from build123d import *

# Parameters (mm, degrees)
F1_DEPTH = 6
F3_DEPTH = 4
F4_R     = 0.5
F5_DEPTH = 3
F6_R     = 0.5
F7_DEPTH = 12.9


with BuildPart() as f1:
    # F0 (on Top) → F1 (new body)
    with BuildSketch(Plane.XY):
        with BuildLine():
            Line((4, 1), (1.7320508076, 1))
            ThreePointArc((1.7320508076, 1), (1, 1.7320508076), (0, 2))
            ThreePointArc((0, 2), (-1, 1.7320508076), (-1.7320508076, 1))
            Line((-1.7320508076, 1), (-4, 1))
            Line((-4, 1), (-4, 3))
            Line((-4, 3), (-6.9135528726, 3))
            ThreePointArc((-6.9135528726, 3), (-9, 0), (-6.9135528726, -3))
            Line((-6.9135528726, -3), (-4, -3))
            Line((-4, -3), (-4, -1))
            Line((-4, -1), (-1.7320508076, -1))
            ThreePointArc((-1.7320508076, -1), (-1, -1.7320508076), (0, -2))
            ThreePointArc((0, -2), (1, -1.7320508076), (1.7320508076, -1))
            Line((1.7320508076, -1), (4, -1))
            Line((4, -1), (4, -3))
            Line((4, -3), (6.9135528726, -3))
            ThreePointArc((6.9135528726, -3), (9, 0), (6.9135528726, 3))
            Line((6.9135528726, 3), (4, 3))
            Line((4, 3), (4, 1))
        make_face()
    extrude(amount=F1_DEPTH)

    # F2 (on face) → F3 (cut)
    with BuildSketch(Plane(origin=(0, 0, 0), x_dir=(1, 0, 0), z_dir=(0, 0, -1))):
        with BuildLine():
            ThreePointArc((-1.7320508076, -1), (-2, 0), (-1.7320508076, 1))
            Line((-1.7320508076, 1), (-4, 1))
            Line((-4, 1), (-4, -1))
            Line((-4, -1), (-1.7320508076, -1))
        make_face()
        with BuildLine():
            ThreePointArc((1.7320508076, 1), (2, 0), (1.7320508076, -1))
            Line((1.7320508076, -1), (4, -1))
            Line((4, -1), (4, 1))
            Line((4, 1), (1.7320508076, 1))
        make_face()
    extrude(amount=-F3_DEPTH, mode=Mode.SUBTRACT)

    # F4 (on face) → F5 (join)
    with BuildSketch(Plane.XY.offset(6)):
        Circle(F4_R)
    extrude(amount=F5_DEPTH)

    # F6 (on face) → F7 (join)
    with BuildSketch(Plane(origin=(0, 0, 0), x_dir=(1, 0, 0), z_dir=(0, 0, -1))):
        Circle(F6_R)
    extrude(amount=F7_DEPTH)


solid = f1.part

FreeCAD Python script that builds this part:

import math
import FreeCAD as App
import Part
import Sketcher

V = App.Vector
Q = App.Units.Quantity

doc = App.newDocument("Part")
body = doc.addObject("PartDesign::Body", "Body")

# Sketch on XY plane
sketch1 = body.newObject("Sketcher::SketchObject", "Sketch")
sketch1.AttachmentSupport = (doc.getObject("XY_Plane"), [""])
sketch1.MapMode = "FlatFace"
sketch1.addGeometry([
    Part.LineSegment(V(4, 1, 0), V(1.7, 1, 0)),  # 0
    Part.ArcOfCircle(Part.Circle(V(0, 0, 0), V(0, 0, 1), 2), math.radians(30), math.radians(90)),  # 1
    Part.ArcOfCircle(Part.Circle(V(0, 0, 0), V(0, 0, 1), 2), math.radians(90), math.radians(150)),  # 2
    Part.LineSegment(V(-1.7, 1, 0), V(-4, 1, 0)),  # 3
    Part.LineSegment(V(-4, 1, 0), V(-4, 3, 0)),  # 4
    Part.LineSegment(V(-4, 3, 0), V(-6.9, 3, 0)),  # 5
    Part.ArcOfCircle(Part.Circle(V(-5.8, 0, 0), V(0, 0, 1), 3.2), math.radians(110), math.radians(250)),  # 6
    Part.LineSegment(V(-6.9, -3, 0), V(-4, -3, 0)),  # 7
    Part.LineSegment(V(-4, -3, 0), V(-4, -1, 0)),  # 8
    Part.LineSegment(V(-4, -1, 0), V(-1.7, -1, 0)),  # 9
    Part.ArcOfCircle(Part.Circle(V(0, 0, 0), V(0, 0, 1), 2), math.radians(-150), math.radians(-90)),  # 10
    Part.ArcOfCircle(Part.Circle(V(0, 0, 0), V(0, 0, 1), 2), math.radians(-90), math.radians(-30)),  # 11
    Part.LineSegment(V(1.7, -1, 0), V(4, -1, 0)),  # 12
    Part.LineSegment(V(4, -1, 0), V(4, -3, 0)),  # 13
    Part.LineSegment(V(4, -3, 0), V(6.9, -3, 0)),  # 14
    Part.ArcOfCircle(Part.Circle(V(5.8, 0, 0), V(0, 0, 1), 3.2), math.radians(-70), math.radians(70)),  # 15
    Part.LineSegment(V(6.9, 3, 0), V(4, 3, 0)),  # 16
    Part.LineSegment(V(4, 3, 0), V(4, 1, 0)),  # 17
], False)
sketch1.addConstraint([
    Sketcher.Constraint("Coincident", 0, 2, 1, 1),
    Sketcher.Constraint("Tangent", 1, 2, 2, 1),
    Sketcher.Constraint("Coincident", 2, 2, 3, 1),
    Sketcher.Constraint("Coincident", 3, 2, 4, 1),
    Sketcher.Constraint("Coincident", 4, 2, 5, 1),
    Sketcher.Constraint("Coincident", 5, 2, 6, 1),
    Sketcher.Constraint("Coincident", 6, 2, 7, 1),
    Sketcher.Constraint("Coincident", 7, 2, 8, 1),
    Sketcher.Constraint("Coincident", 8, 2, 9, 1),
    Sketcher.Constraint("Coincident", 9, 2, 10, 1),
    Sketcher.Constraint("Tangent", 10, 2, 11, 1),
    Sketcher.Constraint("Coincident", 11, 2, 12, 1),
    Sketcher.Constraint("Coincident", 12, 2, 13, 1),
    Sketcher.Constraint("Coincident", 13, 2, 14, 1),
    Sketcher.Constraint("Coincident", 14, 2, 15, 1),
    Sketcher.Constraint("Coincident", 15, 2, 16, 1),
    Sketcher.Constraint("Coincident", 16, 2, 17, 1),
    Sketcher.Constraint("Coincident", 17, 2, 0, 1),
    Sketcher.Constraint("Horizontal", 0),
    Sketcher.Constraint("Horizontal", 3),
    Sketcher.Constraint("Vertical", 4),
    Sketcher.Constraint("Horizontal", 5),
    Sketcher.Constraint("Horizontal", 7),
    Sketcher.Constraint("Vertical", 8),
    Sketcher.Constraint("Horizontal", 9),
    Sketcher.Constraint("Horizontal", 12),
    Sketcher.Constraint("Vertical", 13),
    Sketcher.Constraint("Horizontal", 14),
    Sketcher.Constraint("Horizontal", 16),
    Sketcher.Constraint("Vertical", 17),
    Sketcher.Constraint("Coincident", 1, 3, -1, 1),
    Sketcher.Constraint("Coincident", 10, 3, -1, 1),
    Sketcher.Constraint("Equal", 1, 2),
    Sketcher.Constraint("Equal", 2, 10),
    Sketcher.Constraint("Equal", 10, 11),
    Sketcher.Constraint("Equal", 6, 15),
    Sketcher.Constraint("Symmetric", 6, 3, 15, 3, -1, 1),
    Sketcher.Constraint("Symmetric", 3, 2, 12, 2, -1, 1),
    Sketcher.Constraint("Symmetric", 7, 2, 16, 2, -1, 1),
    Sketcher.Constraint("Symmetric", 8, 2, 12, 2, -2),
    Sketcher.Constraint("Symmetric", 6, 2, 14, 2, -2),
    Sketcher.Constraint("PointOnObject", 1, 2, -2),
    Sketcher.Constraint("PointOnObject", 10, 2, -2),
    Sketcher.Constraint("Horizontal", 0, 2, 2, 2),
    Sketcher.Constraint("Horizontal", 5, 2, 15, 2),
    Sketcher.Constraint("Radius", 1, Q("2 mm")),
    Sketcher.Constraint("Radius", 6, Q("3.2 mm")),
    Sketcher.Constraint("DistanceY", 4, 1, 4, 2, Q("2 mm")),
    Sketcher.Constraint("DistanceY", -1, 1, 0, 2, Q("1 mm")),
    Sketcher.Constraint("DistanceX", 3, 2, -1, 1, Q("4 mm")),
    Sketcher.Constraint("DistanceX", 6, 3, -1, 1, Q("5.8 mm")),
])
pad1 = body.newObject("PartDesign::Pad", "Pad")
pad1.Profile = sketch1
pad1.Length = 6

# Sketch on XY plane
sketch2 = body.newObject("Sketcher::SketchObject", "Sketch001")
sketch2.AttachmentSupport = (doc.getObject("XY_Plane"), [""])
sketch2.MapMode = "FlatFace"
sketch2.addGeometry([
    Part.ArcOfCircle(Part.Circle(V(0, 0, 0), V(0, 0, 1), 2), math.radians(150), math.radians(210)),  # 0
    Part.LineSegment(V(-1.7, -1, 0), V(-4, -1, 0)),  # 1
    Part.LineSegment(V(-4, -1, 0), V(-4, 1, 0)),  # 2
    Part.LineSegment(V(-4, 1, 0), V(-1.7, 1, 0)),  # 3
    Part.ArcOfCircle(Part.Circle(V(0, 0, 0), V(0, 0, 1), 2), math.radians(-30), math.radians(30)),  # 4
    Part.LineSegment(V(1.7, 1, 0), V(4, 1, 0)),  # 5
    Part.LineSegment(V(4, 1, 0), V(4, -1, 0)),  # 6
    Part.LineSegment(V(4, -1, 0), V(1.7, -1, 0)),  # 7
], False)
sketch2.addConstraint([
    Sketcher.Constraint("Coincident", 0, 2, 1, 1),
    Sketcher.Constraint("Coincident", 1, 2, 2, 1),
    Sketcher.Constraint("Coincident", 2, 2, 3, 1),
    Sketcher.Constraint("Coincident", 3, 2, 0, 1),
    Sketcher.Constraint("Coincident", 4, 2, 5, 1),
    Sketcher.Constraint("Coincident", 5, 2, 6, 1),
    Sketcher.Constraint("Coincident", 6, 2, 7, 1),
    Sketcher.Constraint("Coincident", 7, 2, 4, 1),
    Sketcher.Constraint("Horizontal", 1),
    Sketcher.Constraint("Vertical", 2),
    Sketcher.Constraint("Horizontal", 3),
    Sketcher.Constraint("Horizontal", 5),
    Sketcher.Constraint("Vertical", 6),
    Sketcher.Constraint("Horizontal", 7),
    Sketcher.Constraint("Coincident", 0, 3, -1, 1),
    Sketcher.Constraint("Coincident", 4, 3, -1, 1),
    Sketcher.Constraint("Equal", 0, 4),
    Sketcher.Constraint("Symmetric", 1, 2, 5, 2, -1, 1),
    Sketcher.Constraint("Horizontal", 3, 2, 4, 2),
    Sketcher.Constraint("Horizontal", 1, 2, 6, 2),
    Sketcher.Constraint("Radius", 0, Q("2 mm")),
    Sketcher.Constraint("DistanceY", 2, 1, 2, 2, Q("2 mm")),
    Sketcher.Constraint("DistanceX", 1, 2, -1, 1, Q("4 mm")),
])
pocket1 = body.newObject("PartDesign::Pocket", "Pocket")
pocket1.Profile = sketch2
pocket1.Length = 4
pocket1.Reversed = True

# Sketch on XY plane
sketch3 = body.newObject("Sketcher::SketchObject", "Sketch002")
sketch3.AttachmentSupport = (doc.getObject("XY_Plane"), [""])
sketch3.MapMode = "FlatFace"
sketch3.AttachmentOffset = App.Placement(V(0, 0, 6), App.Rotation())
sketch3.addGeometry(Part.Circle(V(0, 0, 0), V(0, 0, 1), 0.5), False)
sketch3.addConstraint([
    Sketcher.Constraint("Coincident", 0, 3, -1, 1),
    Sketcher.Constraint("Diameter", 0, Q("1 mm")),
])
pad2 = body.newObject("PartDesign::Pad", "Pad001")
pad2.Profile = sketch3
pad2.Length = 3

# Sketch on XY plane
sketch4 = body.newObject("Sketcher::SketchObject", "Sketch003")
sketch4.AttachmentSupport = (doc.getObject("XY_Plane"), [""])
sketch4.MapMode = "FlatFace"
sketch4.addGeometry(Part.Circle(V(0, 0, 0), V(0, 0, 1), 0.5), False)
sketch4.addConstraint([
    Sketcher.Constraint("Coincident", 0, 3, -1, 1),
    Sketcher.Constraint("Diameter", 0, Q("1 mm")),
])
pad3 = body.newObject("PartDesign::Pad", "Pad002")
pad3.Profile = sketch4
pad3.Length = 12.9
pad3.Reversed = True

doc.recompute()
